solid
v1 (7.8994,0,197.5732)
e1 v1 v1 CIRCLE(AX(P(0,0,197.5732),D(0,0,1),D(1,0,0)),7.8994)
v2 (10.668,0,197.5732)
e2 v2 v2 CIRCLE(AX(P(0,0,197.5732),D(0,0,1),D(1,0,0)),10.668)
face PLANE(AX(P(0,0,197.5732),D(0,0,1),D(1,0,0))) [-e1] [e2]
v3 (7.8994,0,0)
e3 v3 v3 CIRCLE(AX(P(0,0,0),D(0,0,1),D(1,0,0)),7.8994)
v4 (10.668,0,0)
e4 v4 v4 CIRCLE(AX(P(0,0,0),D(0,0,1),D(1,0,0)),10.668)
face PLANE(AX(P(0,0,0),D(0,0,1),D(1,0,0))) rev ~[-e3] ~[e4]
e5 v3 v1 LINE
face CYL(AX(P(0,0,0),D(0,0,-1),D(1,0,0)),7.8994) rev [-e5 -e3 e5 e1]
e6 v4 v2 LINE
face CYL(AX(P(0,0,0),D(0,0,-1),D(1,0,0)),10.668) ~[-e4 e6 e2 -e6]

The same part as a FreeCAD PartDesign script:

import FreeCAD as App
import Part
import Sketcher
from FreeCAD import Vector
Q = App.Units.Quantity

doc = App.newDocument("Part")
body = doc.addObject("PartDesign::Body", "Body")

# Sketch on XY plane
sketch1 = body.newObject("Sketcher::SketchObject", "Sketch")
sketch1.AttachmentSupport = (doc.getObject("XY_Plane"), [""])
sketch1.MapMode = "FlatFace"
sketch1.addGeometry([
    Part.Circle(Vector(0, 0, 0), Vector(0, 0, 1), 11),
    Part.Circle(Vector(0, 0, 0), Vector(0, 0, 1), 8),
], False)
sketch1.addConstraint([
    Sketcher.Constraint("Coincident", 0, 3, -1, 1),
    Sketcher.Constraint("Coincident", 1, 3, -1, 1),
    Sketcher.Constraint("Diameter", 0, Q("0.84 in")),
    Sketcher.Constraint("Diameter", 1, Q("0.622 in")),
])
pad1 = body.newObject("PartDesign::Pad", "Pad")
pad1.Profile = sketch1
pad1.Length = 197.5732

doc.recompute()
